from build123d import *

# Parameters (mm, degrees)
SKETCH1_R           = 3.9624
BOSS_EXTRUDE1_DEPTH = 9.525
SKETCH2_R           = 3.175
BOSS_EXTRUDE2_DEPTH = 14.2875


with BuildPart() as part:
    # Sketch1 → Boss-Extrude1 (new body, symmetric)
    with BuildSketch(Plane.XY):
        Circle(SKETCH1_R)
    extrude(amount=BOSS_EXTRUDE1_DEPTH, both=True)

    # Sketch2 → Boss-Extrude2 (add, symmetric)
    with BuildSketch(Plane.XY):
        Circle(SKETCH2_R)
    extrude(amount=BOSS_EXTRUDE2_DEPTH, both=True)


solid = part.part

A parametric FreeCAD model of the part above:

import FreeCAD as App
import Part
import Sketcher
Q = App.Units.Quantity

doc = App.newDocument("Part")
body = doc.addObject("PartDesign::Body", "Body")

# Sketch on XY plane
sketch1 = doc.addObject("Sketcher::SketchObject", "Sketch")
body.addObject(sketch1)
sketch1.AttachmentSupport = (doc.XY_Plane, [""])
sketch1.MapMode = "FlatFace"
sketch1.addGeometry(Part.Circle(App.Vector(0, 0, 0), App.Vector(0, 0, 1), 3.9624), False)
sketch1.addConstraint([
    Sketcher.Constraint("Coincident", 0, 3, -1, 1),
    Sketcher.Constraint("Diameter", 0, Q("0.312 in")),
])
pad1 = doc.addObject("PartDesign::Pad", "Pad")
body.addObject(pad1)
pad1.Profile = sketch1
pad1.Length = Q("0.75 in")
pad1.Midplane = True

# Sketch on XY plane
sketch2 = doc.addObject("Sketcher::SketchObject", "Sketch001")
body.addObject(sketch2)
sketch2.AttachmentSupport = (doc.XY_Plane, [""])
sketch2.MapMode = "FlatFace"
sketch2.addGeometry(Part.Circle(App.Vector(0, 0, 0), App.Vector(0, 0, 1), 3.175), False)
sketch2.addConstraint([
    Sketcher.Constraint("Coincident", 0, 3, -1, 1),
    Sketcher.Constraint("Diameter", 0, Q("0.25 in")),
])
pad2 = doc.addObject("PartDesign::Pad", "Pad001")
body.addObject(pad2)
pad2.Profile = sketch2
pad2.Length = Q("1.125 in")
pad2.Midplane = True

doc.recompute()
